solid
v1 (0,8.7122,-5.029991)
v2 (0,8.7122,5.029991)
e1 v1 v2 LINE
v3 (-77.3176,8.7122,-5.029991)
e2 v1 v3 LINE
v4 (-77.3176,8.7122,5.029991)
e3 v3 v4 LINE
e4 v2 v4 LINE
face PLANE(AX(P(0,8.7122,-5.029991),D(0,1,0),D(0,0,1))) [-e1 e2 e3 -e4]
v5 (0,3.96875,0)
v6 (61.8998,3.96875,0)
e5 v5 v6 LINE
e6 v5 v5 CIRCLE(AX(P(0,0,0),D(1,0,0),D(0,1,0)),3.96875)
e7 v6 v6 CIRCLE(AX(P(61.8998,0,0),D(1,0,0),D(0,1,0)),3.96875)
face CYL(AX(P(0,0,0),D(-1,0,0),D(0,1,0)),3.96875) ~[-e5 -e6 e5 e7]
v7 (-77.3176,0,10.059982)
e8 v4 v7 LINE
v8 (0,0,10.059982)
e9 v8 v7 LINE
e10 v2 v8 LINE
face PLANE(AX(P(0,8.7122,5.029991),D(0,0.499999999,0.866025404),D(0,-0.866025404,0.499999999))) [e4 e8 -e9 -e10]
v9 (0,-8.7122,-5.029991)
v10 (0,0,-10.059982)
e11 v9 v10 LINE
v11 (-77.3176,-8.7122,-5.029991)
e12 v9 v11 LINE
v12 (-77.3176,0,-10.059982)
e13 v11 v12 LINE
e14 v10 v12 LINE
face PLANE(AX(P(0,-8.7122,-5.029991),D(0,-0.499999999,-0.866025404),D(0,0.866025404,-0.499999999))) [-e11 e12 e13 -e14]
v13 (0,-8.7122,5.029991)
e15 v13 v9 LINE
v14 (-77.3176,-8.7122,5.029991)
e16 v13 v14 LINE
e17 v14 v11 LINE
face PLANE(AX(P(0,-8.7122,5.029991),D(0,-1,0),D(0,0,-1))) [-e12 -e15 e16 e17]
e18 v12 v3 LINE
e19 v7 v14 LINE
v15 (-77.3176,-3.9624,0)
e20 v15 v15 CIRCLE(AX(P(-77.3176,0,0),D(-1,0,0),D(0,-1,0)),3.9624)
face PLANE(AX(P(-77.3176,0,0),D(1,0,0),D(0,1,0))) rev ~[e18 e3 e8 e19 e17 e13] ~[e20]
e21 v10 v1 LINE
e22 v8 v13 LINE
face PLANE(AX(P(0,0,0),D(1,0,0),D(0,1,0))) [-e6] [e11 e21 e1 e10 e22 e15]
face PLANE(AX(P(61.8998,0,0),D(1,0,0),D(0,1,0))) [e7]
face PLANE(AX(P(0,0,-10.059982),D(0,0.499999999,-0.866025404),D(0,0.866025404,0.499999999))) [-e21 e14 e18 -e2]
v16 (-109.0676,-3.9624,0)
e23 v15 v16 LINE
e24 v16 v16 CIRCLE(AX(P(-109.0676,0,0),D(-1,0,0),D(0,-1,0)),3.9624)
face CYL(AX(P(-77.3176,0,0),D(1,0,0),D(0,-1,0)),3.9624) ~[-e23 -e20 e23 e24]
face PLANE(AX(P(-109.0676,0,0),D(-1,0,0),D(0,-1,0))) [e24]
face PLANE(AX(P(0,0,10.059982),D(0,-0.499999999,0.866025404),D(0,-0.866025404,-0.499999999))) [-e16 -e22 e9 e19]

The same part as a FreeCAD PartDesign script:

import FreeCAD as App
import Part
import Sketcher
Q = App.Units.Quantity


def add_polygon(sketch, points):
    """Adds a closed chain of lines whose ends are joined by coincident constraints."""
    first, n = sketch.GeometryCount, len(points)
    for a, b in zip(points, points[1:] + points[:1]):
        sketch.addGeometry(Part.LineSegment(App.Vector(*a, 0), App.Vector(*b, 0)), False)
    for i in range(n):
        sketch.addConstraint(Sketcher.Constraint("Coincident", first + i, 2, first + (i + 1) % n, 1))

doc = App.newDocument("Part")
body = doc.addObject("PartDesign::Body", "Body")

# Sketch on YZ plane
sketch1 = body.newObject("Sketcher::SketchObject", "Sketch")
sketch1.AttachmentSupport = (doc.getObject("YZ_Plane"), [""])
sketch1.MapMode = "FlatFace"
add_polygon(sketch1, [(9, -5), (9, 5), (0, 10), (-9, 5), (-9, -5), (0, -10)])  # lines 0-5
sketch1.addConstraint([
    Sketcher.Constraint("Vertical", 0),
    Sketcher.Constraint("Vertical", 3),
    Sketcher.Constraint("Symmetric", 0, 2, 3, 2, -1, 1),
    Sketcher.Constraint("Symmetric", 1, 2, 4, 2, -1, 1),
    Sketcher.Constraint("PointOnObject", 1, 2, -2),
    Sketcher.Constraint("Parallel", 2, 5),
    Sketcher.Constraint("Horizontal", 0, 2, 2, 2),
    Sketcher.Constraint("Angle", 1, Q("150 deg")),
    Sketcher.Constraint("DistanceX", -1, 1, 0, 2, Q("0.343 in")),
    Sketcher.Constraint("DistanceY", 0, 1, 0, 2, 10.059982),
])
pad1 = body.newObject("PartDesign::Pad", "Pad")
pad1.Profile = sketch1
pad1.Length = Q("3.044 in")
pad1.Reversed = True

# Sketch on YZ plane
sketch2 = body.newObject("Sketcher::SketchObject", "Sketch001")
sketch2.AttachmentSupport = (doc.getObject("YZ_Plane"), [""])
sketch2.MapMode = "FlatFace"
sketch2.AttachmentOffset = App.Placement(App.Vector(0, 0, -3.044 * 25.4), App.Rotation())
sketch2.addGeometry(Part.Circle(App.Vector(0, 0, 0), App.Vector(0, 0, 1), 4), False)
sketch2.addConstraint([
    Sketcher.Constraint("Coincident", 0, 3, -1, 1),
    Sketcher.Constraint("Diameter", 0, Q("0.312 in")),
])
pad2 = body.newObject("PartDesign::Pad", "Pad001")
pad2.Profile = sketch2
pad2.Length = Q("1.25 in")
pad2.Reversed = True

# Sketch on YZ plane
sketch3 = body.newObject("Sketcher::SketchObject", "Sketch002")
sketch3.AttachmentSupport = (doc.getObject("YZ_Plane"), [""])
sketch3.MapMode = "FlatFace"
sketch3.addGeometry(Part.Circle(App.Vector(0, 0, 0), App.Vector(0, 0, 1), 4), False)
sketch3.addConstraint([
    Sketcher.Constraint("Coincident", 0, 3, -1, 1),
    Sketcher.Constraint("Diameter", 0, Q("0.3125 in")),
])
pad3 = body.newObject("PartDesign::Pad", "Pad002")
pad3.Profile = sketch3
pad3.Length = Q("2.437 in")

doc.recompute()
